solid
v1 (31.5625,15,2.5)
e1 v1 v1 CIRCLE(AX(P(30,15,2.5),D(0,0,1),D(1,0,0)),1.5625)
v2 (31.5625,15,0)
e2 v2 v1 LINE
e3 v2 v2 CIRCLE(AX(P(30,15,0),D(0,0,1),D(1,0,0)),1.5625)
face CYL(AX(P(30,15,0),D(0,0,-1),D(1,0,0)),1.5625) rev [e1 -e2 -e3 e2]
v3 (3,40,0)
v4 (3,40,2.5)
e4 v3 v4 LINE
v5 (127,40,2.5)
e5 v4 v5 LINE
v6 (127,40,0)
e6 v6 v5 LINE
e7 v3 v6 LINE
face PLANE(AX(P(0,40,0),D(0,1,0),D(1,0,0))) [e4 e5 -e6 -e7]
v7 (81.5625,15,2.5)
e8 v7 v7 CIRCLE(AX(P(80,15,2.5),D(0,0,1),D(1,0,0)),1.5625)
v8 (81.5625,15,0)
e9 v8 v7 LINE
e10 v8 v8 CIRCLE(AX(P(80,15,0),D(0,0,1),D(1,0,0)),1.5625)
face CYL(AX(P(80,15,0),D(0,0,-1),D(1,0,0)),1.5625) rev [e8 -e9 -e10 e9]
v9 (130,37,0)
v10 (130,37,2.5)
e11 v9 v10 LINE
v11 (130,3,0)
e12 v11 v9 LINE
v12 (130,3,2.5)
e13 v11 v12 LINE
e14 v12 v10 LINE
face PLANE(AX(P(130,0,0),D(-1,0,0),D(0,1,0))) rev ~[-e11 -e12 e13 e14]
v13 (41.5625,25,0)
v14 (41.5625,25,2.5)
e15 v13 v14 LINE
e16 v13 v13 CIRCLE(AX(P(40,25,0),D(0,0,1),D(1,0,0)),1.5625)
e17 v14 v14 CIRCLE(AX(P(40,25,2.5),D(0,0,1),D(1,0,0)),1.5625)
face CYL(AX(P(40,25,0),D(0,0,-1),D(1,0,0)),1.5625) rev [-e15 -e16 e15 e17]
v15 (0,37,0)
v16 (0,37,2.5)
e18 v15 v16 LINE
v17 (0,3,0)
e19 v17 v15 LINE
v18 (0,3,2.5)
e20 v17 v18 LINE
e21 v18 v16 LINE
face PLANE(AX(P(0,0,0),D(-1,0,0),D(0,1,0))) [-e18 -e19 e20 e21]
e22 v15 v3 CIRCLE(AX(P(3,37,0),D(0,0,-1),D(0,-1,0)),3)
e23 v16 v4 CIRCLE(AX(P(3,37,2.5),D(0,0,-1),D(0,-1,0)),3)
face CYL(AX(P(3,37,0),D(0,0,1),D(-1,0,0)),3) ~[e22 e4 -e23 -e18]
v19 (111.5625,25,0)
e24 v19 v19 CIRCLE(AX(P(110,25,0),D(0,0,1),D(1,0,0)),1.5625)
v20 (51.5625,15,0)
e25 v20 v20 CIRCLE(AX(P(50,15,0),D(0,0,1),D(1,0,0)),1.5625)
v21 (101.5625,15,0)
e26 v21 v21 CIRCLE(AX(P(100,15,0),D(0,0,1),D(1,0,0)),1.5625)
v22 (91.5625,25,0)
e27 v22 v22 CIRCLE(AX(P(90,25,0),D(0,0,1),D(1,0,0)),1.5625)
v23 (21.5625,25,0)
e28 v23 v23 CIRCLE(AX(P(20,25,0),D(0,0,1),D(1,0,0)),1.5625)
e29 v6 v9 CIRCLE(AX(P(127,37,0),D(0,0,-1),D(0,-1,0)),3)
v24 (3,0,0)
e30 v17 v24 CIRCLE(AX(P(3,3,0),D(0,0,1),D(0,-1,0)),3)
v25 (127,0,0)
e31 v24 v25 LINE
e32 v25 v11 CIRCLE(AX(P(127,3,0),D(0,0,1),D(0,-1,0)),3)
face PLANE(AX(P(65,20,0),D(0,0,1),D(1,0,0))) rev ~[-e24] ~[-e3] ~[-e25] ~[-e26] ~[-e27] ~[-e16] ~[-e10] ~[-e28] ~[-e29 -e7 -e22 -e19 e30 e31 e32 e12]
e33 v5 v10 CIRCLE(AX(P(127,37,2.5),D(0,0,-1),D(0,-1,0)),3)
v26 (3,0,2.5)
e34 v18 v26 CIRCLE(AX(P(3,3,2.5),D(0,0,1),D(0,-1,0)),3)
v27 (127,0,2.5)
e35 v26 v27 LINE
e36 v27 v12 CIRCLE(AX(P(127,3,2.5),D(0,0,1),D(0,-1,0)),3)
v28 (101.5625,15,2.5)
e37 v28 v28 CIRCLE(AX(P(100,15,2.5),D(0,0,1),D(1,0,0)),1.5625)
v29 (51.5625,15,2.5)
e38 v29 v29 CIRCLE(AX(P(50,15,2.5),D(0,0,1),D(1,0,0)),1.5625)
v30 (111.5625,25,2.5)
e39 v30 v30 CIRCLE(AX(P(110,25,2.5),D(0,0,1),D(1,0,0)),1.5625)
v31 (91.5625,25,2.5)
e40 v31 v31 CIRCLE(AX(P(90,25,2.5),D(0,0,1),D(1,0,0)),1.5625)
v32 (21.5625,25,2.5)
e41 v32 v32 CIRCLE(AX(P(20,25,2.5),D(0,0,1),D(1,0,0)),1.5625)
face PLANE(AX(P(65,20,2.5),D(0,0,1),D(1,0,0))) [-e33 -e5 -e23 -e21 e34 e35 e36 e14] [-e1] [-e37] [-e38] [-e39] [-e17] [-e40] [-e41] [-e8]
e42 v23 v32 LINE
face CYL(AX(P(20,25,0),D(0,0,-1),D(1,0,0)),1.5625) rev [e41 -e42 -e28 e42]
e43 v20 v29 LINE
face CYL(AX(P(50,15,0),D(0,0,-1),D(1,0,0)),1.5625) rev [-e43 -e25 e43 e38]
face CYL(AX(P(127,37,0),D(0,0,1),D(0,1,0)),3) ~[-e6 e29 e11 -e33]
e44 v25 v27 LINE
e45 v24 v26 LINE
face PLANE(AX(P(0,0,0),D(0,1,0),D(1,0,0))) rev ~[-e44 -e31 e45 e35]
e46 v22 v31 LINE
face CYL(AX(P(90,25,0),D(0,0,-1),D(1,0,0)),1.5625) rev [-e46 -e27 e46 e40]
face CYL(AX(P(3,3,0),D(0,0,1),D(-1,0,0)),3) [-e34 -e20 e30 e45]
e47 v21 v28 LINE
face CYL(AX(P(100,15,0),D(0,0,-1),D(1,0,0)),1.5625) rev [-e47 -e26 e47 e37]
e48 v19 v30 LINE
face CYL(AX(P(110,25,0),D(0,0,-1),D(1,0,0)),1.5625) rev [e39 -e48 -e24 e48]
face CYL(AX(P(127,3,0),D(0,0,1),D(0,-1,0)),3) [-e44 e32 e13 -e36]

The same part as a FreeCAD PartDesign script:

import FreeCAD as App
import Part
import Sketcher
from FreeCAD import Vector


def edges_at(feature, points):
    """Names of the edges that pass closest to the given points."""
    edges = feature.Shape.Edges
    near = lambda p: min(range(len(edges)), key=lambda i: edges[i].distToShape(Part.Vertex(*p))[0])
    return sorted({f"Edge{near(p) + 1}" for p in points})

doc = App.newDocument("Part")
body = doc.addObject("PartDesign::Body", "Body")

sketch1 = body.newObject("Sketcher::SketchObject", "Sketch")
sketch1.AttachmentSupport = (doc.getObject("XY_Plane"), [""])
sketch1.MapMode = "FlatFace"
sketch1.addGeometry(Part.LineSegment(Vector(0, 40, 0), Vector(0, 0, 0)), False)
sketch1.addGeometry(Part.LineSegment(Vector(0, 0, 0), Vector(130, 0, 0)), False)
sketch1.addGeometry(Part.LineSegment(Vector(130, 0, 0), Vector(130, 40, 0)), False)
sketch1.addGeometry(Part.LineSegment(Vector(130, 40, 0), Vector(0, 40, 0)), False)
sketch1.addGeometry(Part.Circle(Vector(30, 15, 0), Vector(0, 0, 1), 1.5625), False)
sketch1.addGeometry(Part.Circle(Vector(50, 15, 0), Vector(0, 0, 1), 1.5625), False)
sketch1.addGeometry(Part.Circle(Vector(80, 15, 0), Vector(0, 0, 1), 1.5625), False)
sketch1.addGeometry(Part.Circle(Vector(100, 15, 0), Vector(0, 0, 1), 1.5625), False)
sketch1.addGeometry(Part.Circle(Vector(20, 25, 0), Vector(0, 0, 1), 1.5625), False)
sketch1.addGeometry(Part.Circle(Vector(40, 25, 0), Vector(0, 0, 1), 1.5625), False)
sketch1.addGeometry(Part.Circle(Vector(90, 25, 0), Vector(0, 0, 1), 1.5625), False)
sketch1.addGeometry(Part.Circle(Vector(110, 25, 0), Vector(0, 0, 1), 1.5625), False)
sketch1.addConstraint(Sketcher.Constraint("Coincident", 0, 2, 1, 1))
sketch1.addConstraint(Sketcher.Constraint("Coincident", 1, 2, 2, 1))
sketch1.addConstraint(Sketcher.Constraint("Coincident", 2, 2, 3, 1))
sketch1.addConstraint(Sketcher.Constraint("Coincident", 3, 2, 0, 1))
sketch1.addConstraint(Sketcher.Constraint("Vertical", 0))
sketch1.addConstraint(Sketcher.Constraint("Horizontal", 1))
sketch1.addConstraint(Sketcher.Constraint("Vertical", 2))
sketch1.addConstraint(Sketcher.Constraint("Horizontal", 3))
sketch1.addConstraint(Sketcher.Constraint("Coincident", 0, 2, -1, 1))
sketch1.addConstraint(Sketcher.Constraint("Equal", 4, 5))
sketch1.addConstraint(Sketcher.Constraint("Equal", 5, 6))
sketch1.addConstraint(Sketcher.Constraint("Equal", 6, 7))
sketch1.addConstraint(Sketcher.Constraint("Equal", 7, 8))
sketch1.addConstraint(Sketcher.Constraint("Equal", 8, 9))
sketch1.addConstraint(Sketcher.Constraint("Equal", 9, 10))
sketch1.addConstraint(Sketcher.Constraint("Equal", 10, 11))
sketch1.addConstraint(Sketcher.Constraint("Horizontal", 4, 3, 5, 3))
sketch1.addConstraint(Sketcher.Constraint("Horizontal", 5, 3, 6, 3))
sketch1.addConstraint(Sketcher.Constraint("Horizontal", 6, 3, 7, 3))
sketch1.addConstraint(Sketcher.Constraint("Horizontal", 8, 3, 9, 3))
sketch1.addConstraint(Sketcher.Constraint("Horizontal", 9, 3, 10, 3))
sketch1.addConstraint(Sketcher.Constraint("Horizontal", 10, 3, 11, 3))
sketch1.addConstraint(Sketcher.Constraint("DistanceX", 1, 1, 1, 2, 130.0))
sketch1.addConstraint(Sketcher.Constraint("DistanceY", 0, 2, 0, 1, 40.0))
sketch1.addConstraint(Sketcher.Constraint("Diameter", 4, 3.125))
sketch1.addConstraint(Sketcher.Constraint("DistanceX", -1, 1, 4, 3, 30.0))
sketch1.addConstraint(Sketcher.Constraint("DistanceY", -1, 1, 4, 3, 15.0))
sketch1.addConstraint(Sketcher.Constraint("DistanceX", -1, 1, 5, 3, 50.0))
sketch1.addConstraint(Sketcher.Constraint("DistanceX", -1, 1, 6, 3, 80.0))
sketch1.addConstraint(Sketcher.Constraint("DistanceX", -1, 1, 7, 3, 100.0))
sketch1.addConstraint(Sketcher.Constraint("DistanceX", -1, 1, 8, 3, 20.0))
sketch1.addConstraint(Sketcher.Constraint("DistanceY", -1, 1, 8, 3, 25.0))
sketch1.addConstraint(Sketcher.Constraint("DistanceX", -1, 1, 9, 3, 40.0))
sketch1.addConstraint(Sketcher.Constraint("DistanceX", -1, 1, 10, 3, 90.0))
sketch1.addConstraint(Sketcher.Constraint("DistanceX", -1, 1, 11, 3, 110.0))
pad1 = body.newObject("PartDesign::Pad", "Pad")
pad1.Profile = sketch1
pad1.Length = 2.5
doc.recompute()

fillet = body.newObject("PartDesign::Fillet", "Fillet")
fillet.Base = (pad1, edges_at(pad1, [
    (0, 0, 1.25),
    (130, 0, 1.25),
    (130, 40, 1.25),
    (0, 40, 1.25),
]))
fillet.Radius = 3

doc.recompute()
